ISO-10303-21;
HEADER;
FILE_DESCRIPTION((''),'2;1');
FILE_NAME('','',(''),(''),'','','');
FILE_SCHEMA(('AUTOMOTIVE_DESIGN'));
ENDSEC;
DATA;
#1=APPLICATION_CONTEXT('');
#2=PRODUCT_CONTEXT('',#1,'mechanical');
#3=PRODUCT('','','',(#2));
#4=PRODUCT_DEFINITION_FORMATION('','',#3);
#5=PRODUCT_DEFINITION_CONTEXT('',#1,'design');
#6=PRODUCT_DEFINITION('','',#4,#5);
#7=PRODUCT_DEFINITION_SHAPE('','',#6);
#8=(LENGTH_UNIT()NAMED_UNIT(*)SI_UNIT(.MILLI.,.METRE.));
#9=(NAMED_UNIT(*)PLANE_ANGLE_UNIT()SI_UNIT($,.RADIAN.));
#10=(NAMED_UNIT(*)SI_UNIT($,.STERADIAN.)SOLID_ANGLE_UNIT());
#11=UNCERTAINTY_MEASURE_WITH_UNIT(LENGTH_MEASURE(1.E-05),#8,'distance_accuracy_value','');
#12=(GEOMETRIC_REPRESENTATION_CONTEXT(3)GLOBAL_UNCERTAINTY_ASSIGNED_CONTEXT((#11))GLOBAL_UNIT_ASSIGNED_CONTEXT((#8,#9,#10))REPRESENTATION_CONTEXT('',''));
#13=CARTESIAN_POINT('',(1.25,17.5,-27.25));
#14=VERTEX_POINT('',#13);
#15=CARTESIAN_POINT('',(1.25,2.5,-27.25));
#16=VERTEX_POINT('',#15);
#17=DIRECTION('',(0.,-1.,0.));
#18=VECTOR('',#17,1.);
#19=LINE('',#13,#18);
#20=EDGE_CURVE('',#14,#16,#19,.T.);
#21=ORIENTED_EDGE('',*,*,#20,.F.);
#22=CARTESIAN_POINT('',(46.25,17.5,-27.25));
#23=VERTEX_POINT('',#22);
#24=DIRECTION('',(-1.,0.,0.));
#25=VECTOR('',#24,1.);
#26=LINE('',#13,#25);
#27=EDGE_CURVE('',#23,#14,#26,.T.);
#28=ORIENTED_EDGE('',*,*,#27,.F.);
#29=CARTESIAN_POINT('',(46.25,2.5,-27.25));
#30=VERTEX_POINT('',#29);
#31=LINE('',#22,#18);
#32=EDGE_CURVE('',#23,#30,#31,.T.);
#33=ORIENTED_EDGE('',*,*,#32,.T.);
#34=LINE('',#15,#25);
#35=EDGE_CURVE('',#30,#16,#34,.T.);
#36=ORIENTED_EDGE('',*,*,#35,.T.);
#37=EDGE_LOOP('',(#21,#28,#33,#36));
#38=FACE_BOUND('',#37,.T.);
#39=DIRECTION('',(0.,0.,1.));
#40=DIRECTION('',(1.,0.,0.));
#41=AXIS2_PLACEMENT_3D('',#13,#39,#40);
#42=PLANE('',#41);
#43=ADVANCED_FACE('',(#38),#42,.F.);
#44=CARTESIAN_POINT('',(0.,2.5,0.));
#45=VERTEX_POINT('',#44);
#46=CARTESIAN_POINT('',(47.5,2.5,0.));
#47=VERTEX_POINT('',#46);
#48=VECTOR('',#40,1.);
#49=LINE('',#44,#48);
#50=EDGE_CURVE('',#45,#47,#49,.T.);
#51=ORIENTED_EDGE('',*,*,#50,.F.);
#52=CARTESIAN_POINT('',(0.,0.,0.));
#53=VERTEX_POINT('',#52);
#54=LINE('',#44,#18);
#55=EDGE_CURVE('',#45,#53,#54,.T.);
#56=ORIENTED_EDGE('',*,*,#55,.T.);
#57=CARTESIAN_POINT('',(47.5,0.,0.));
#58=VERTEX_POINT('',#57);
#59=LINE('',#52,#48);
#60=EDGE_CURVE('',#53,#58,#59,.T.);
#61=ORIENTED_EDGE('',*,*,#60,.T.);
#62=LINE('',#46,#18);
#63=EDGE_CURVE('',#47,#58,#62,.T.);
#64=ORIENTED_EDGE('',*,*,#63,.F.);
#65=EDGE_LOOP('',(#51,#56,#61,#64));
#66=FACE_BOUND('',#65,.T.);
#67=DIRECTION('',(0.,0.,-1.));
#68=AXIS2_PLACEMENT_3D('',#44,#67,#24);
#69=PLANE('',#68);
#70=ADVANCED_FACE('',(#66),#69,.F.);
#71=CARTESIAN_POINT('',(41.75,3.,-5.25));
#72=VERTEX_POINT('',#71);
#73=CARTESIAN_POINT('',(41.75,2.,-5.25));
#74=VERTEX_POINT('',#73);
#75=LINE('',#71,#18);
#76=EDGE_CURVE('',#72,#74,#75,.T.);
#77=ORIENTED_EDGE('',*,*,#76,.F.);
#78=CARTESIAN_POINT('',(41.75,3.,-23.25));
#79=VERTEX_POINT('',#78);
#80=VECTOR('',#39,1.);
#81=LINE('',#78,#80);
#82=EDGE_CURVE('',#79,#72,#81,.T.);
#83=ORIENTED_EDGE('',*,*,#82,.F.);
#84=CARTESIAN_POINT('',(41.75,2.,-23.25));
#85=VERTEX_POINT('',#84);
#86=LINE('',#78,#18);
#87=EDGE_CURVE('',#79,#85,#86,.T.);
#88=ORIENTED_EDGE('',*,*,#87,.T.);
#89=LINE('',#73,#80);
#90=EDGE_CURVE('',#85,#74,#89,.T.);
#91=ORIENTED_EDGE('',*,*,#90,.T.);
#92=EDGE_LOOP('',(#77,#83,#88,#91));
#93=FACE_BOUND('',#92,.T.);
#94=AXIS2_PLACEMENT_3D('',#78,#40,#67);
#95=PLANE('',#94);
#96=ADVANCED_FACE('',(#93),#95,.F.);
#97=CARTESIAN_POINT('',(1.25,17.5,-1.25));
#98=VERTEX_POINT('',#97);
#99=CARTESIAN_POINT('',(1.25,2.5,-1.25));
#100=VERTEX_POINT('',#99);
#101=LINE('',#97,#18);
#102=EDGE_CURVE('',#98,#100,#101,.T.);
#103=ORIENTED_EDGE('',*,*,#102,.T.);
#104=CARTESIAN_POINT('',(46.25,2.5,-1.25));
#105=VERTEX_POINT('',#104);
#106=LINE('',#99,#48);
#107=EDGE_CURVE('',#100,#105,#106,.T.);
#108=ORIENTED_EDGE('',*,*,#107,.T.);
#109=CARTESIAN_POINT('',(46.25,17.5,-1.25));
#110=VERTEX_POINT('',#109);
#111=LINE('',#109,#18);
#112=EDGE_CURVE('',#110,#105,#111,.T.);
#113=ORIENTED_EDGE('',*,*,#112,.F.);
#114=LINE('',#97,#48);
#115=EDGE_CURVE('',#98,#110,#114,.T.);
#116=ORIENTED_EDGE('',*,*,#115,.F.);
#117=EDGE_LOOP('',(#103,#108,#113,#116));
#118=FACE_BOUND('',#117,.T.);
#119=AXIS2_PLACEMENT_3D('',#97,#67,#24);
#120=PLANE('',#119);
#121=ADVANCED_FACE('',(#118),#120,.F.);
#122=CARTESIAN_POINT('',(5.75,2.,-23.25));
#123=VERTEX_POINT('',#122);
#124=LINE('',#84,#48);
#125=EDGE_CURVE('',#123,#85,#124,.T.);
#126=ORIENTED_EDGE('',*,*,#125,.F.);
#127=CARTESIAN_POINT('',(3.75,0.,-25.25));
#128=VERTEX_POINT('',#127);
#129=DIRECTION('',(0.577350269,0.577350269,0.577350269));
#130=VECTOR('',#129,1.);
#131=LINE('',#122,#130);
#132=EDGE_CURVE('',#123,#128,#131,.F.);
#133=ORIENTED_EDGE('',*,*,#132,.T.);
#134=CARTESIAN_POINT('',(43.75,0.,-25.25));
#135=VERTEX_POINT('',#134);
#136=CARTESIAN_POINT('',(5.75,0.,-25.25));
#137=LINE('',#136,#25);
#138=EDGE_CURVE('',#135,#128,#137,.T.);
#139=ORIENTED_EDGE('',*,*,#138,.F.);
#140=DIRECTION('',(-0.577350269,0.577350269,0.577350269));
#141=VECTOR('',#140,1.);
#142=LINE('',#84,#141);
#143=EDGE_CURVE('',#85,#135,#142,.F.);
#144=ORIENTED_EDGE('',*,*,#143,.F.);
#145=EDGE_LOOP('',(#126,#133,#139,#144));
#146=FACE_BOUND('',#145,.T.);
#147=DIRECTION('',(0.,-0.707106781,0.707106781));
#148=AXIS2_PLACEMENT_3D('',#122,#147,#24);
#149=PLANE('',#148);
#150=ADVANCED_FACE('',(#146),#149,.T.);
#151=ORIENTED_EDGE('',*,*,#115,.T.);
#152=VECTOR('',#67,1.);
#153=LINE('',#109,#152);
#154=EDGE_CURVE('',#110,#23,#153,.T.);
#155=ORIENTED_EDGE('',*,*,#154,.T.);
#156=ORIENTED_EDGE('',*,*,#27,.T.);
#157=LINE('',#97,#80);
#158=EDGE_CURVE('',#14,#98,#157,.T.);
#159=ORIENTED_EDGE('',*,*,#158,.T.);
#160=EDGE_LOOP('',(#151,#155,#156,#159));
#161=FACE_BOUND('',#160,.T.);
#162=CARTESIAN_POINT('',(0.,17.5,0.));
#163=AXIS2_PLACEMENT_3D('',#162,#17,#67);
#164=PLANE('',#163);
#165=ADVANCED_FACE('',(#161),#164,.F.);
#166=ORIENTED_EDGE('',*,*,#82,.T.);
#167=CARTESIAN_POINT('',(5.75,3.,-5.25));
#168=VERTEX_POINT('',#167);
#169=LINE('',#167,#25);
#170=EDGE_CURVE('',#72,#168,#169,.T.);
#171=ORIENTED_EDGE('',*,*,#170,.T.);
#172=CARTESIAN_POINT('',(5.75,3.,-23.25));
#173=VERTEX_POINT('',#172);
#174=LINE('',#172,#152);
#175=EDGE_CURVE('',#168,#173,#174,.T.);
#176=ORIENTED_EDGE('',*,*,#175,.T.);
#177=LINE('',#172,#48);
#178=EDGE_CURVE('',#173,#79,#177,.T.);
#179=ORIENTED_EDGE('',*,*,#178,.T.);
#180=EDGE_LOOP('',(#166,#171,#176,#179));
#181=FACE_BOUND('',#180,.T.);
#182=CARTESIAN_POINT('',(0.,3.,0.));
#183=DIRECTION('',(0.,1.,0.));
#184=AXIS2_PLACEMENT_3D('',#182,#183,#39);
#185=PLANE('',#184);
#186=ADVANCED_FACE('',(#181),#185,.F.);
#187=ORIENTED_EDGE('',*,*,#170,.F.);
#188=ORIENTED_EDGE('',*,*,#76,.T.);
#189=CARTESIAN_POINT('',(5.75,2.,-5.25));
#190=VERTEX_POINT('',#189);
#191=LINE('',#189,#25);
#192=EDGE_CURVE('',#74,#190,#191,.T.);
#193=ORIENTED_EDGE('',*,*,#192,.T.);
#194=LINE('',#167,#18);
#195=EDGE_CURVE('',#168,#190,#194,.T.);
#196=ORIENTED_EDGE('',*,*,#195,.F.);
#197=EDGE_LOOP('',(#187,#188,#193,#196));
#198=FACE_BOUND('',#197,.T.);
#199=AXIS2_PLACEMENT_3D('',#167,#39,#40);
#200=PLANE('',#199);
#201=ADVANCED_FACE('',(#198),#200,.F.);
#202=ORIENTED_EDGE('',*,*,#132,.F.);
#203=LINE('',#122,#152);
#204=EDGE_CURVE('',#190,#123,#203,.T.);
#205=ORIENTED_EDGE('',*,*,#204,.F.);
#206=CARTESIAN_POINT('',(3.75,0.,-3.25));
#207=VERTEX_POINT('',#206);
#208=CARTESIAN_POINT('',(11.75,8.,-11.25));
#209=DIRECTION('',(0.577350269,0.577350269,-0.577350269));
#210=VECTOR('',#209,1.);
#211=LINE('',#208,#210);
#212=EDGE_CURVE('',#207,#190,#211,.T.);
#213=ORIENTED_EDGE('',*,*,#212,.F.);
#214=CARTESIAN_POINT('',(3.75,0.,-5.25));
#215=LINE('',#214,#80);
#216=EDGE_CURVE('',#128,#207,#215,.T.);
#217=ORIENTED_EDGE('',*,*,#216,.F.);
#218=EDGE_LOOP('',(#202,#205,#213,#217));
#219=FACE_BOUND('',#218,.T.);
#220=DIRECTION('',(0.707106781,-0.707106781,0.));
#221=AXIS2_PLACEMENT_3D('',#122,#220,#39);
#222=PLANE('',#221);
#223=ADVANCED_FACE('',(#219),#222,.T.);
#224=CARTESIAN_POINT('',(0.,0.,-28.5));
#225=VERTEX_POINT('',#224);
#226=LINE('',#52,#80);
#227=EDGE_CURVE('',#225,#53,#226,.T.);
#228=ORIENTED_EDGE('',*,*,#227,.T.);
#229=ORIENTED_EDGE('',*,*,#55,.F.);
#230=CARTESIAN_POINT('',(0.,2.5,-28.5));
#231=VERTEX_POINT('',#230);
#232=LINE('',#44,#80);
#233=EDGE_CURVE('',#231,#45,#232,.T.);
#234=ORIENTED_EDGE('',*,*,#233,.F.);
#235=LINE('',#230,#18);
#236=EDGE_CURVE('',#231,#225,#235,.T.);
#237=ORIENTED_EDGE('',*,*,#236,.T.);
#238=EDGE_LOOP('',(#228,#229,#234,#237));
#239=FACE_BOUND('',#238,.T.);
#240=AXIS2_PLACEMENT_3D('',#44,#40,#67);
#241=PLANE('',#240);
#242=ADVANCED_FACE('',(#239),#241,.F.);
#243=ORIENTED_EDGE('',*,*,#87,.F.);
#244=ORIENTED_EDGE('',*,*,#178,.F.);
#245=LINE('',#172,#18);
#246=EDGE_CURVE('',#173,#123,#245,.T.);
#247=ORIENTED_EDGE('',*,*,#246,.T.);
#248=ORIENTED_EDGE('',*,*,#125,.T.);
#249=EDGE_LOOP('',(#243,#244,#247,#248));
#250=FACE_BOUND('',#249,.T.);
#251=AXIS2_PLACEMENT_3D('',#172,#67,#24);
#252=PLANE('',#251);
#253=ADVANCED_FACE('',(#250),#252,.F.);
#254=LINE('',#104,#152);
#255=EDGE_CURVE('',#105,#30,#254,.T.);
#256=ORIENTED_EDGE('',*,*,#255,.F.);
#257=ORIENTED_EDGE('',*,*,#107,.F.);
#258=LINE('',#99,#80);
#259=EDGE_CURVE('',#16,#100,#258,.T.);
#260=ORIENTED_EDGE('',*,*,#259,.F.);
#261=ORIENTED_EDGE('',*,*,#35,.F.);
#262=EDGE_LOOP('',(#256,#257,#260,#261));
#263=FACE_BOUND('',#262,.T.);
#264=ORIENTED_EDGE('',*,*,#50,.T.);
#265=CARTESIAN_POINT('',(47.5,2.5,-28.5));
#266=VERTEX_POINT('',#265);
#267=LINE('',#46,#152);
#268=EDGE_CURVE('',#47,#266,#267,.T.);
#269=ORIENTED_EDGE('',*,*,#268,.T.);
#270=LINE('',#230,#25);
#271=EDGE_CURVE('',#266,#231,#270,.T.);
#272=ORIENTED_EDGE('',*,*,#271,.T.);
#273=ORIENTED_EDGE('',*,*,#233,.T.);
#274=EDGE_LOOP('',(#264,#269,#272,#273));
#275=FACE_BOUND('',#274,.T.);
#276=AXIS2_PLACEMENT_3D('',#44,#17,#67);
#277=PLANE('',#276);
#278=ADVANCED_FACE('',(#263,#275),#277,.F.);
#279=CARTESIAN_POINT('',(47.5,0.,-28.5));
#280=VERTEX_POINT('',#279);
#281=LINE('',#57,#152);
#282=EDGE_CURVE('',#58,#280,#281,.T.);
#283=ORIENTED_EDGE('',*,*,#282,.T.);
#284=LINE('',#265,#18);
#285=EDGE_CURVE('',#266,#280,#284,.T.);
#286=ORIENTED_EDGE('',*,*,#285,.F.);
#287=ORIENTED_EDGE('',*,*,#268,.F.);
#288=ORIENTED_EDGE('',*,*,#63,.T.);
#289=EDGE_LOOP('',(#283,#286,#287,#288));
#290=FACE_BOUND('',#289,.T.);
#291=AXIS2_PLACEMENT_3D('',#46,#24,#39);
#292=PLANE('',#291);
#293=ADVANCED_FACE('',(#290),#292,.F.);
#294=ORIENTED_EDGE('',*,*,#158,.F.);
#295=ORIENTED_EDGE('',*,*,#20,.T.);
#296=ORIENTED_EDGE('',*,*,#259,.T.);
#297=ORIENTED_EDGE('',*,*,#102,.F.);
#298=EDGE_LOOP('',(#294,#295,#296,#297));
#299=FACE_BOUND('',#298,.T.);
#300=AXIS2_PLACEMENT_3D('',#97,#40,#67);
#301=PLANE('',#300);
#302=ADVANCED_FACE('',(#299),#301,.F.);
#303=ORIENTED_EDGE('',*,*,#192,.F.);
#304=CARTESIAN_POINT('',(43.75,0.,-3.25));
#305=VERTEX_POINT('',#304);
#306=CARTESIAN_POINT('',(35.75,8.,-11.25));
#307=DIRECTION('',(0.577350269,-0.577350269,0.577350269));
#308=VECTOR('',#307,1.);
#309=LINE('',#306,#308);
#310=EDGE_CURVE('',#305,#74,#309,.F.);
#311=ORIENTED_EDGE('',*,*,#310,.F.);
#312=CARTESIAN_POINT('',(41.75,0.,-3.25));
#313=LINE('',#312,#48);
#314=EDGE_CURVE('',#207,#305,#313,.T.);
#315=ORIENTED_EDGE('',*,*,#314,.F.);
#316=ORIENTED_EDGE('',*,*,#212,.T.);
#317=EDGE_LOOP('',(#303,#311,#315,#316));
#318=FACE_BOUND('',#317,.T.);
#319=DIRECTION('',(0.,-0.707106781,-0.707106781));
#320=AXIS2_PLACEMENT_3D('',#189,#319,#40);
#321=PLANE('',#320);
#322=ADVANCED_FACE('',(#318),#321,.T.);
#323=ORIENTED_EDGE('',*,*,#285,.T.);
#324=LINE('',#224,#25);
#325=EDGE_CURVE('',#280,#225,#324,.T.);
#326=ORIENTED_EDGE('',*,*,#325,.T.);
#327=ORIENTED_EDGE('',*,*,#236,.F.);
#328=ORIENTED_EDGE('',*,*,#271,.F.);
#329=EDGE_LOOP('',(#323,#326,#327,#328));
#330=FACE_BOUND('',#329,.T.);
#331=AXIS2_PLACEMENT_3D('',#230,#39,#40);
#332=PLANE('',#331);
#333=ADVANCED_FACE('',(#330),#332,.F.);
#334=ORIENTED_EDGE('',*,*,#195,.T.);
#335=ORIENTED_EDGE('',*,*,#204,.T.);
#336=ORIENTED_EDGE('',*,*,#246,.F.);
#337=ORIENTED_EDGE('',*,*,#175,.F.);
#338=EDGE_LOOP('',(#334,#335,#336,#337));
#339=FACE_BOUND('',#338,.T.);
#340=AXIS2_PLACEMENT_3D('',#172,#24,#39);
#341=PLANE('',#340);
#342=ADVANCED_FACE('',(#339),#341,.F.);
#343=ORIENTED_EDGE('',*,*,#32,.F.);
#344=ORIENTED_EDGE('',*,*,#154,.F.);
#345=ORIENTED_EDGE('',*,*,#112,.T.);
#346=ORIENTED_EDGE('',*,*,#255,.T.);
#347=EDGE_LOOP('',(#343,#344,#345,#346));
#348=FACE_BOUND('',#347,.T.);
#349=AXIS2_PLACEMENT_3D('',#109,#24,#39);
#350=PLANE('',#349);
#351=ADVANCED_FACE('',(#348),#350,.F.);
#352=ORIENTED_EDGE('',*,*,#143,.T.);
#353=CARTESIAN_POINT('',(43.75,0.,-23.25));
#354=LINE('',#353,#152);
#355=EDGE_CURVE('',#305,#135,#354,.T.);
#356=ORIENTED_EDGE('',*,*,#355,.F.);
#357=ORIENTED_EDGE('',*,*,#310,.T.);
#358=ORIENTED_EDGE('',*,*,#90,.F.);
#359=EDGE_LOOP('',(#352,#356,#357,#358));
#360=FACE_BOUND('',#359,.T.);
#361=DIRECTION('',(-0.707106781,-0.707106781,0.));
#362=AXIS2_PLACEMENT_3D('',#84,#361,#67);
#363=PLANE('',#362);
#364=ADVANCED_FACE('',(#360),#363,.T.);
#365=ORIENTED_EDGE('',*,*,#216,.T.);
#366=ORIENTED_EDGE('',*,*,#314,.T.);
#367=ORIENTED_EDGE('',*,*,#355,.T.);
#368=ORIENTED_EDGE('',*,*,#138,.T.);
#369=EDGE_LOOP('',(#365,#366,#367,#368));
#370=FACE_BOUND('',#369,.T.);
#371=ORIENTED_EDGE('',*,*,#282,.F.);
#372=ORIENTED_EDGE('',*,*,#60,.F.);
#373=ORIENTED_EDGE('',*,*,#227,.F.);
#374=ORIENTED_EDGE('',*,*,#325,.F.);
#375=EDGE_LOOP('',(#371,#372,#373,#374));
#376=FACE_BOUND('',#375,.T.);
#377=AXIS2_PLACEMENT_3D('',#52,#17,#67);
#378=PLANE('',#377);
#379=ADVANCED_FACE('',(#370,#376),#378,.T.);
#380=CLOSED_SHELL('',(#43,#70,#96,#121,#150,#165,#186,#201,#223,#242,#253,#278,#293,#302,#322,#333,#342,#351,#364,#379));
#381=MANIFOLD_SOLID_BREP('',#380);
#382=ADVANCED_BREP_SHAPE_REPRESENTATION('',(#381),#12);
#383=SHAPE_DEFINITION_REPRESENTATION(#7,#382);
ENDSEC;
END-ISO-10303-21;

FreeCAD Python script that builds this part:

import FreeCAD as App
import Part
import Sketcher

V = App.Vector


def edges_at(feature, points):
    """Names of the edges that pass closest to the given points."""
    edges = feature.Shape.Edges
    near = lambda p: min(range(len(edges)), key=lambda i: edges[i].distToShape(Part.Vertex(*p))[0])
    return sorted({f"Edge{near(p) + 1}" for p in points})


def add_polygon(sketch, points):
    """Adds a closed chain of lines whose ends are joined by coincident constraints."""
    first, n = sketch.GeometryCount, len(points)
    for a, b in zip(points, points[1:] + points[:1]):
        sketch.addGeometry(Part.LineSegment(App.Vector(*a, 0), App.Vector(*b, 0)), False)
    for i in range(n):
        sketch.addConstraint(Sketcher.Constraint("Coincident", first + i, 2, first + (i + 1) % n, 1))

doc = App.newDocument("Part")
params = doc.addObject("Spreadsheet::Sheet", "Params")
for row, (alias, value) in enumerate([
    ("sketch1_width", "47.5 mm"),
    ("sketch1_height", "28.5 mm"),
    ("pad1_length", "2.5 mm"),
    ("sketch2_width", "45 mm"),
    ("sketch2_height", "26 mm"),
    ("pad2_length", "15 mm"),
    ("sketch3_width", "36 mm"),
    ("sketch3_height", "18 mm"),
    ("pocket1_length", "3 mm"),
    ("chamfer_size", "2 mm"),
], start=1):
    params.set(f"A{row}", alias)
    params.set(f"B{row}", "=" + value)
    params.setAlias(f"B{row}", alias)

body = doc.addObject("PartDesign::Body", "Body")

sketch1 = doc.addObject("Sketcher::SketchObject", "Sketch")
body.addObject(sketch1)
sketch1.AttachmentSupport = (doc.XZ_Plane, [""])
sketch1.MapMode = "FlatFace"
add_polygon(sketch1, [(0, -28), (0, 0), (48, 0), (48, -28)])
sketch1.addConstraint([
    Sketcher.Constraint("Vertical", 0),
    Sketcher.Constraint("Horizontal", 1),
    Sketcher.Constraint("Vertical", 2),
    Sketcher.Constraint("Horizontal", 3),
    Sketcher.Constraint("Coincident", 0, 2, -1, 1),
    Sketcher.Constraint("DistanceX", 1, 1, 1, 2, 47.5),
    Sketcher.Constraint("DistanceY", 0, 1, 0, 2, 28.5),
])
sketch1.setExpression("Constraints[9]", "Params.sketch1_width")
sketch1.setExpression("Constraints[10]", "Params.sketch1_height")
pad1 = doc.addObject("PartDesign::Pad", "Pad")
body.addObject(pad1)
pad1.Profile = sketch1
pad1.setExpression("Length", "Params.pad1_length")
pad1.Reversed = True

sketch2 = doc.addObject("Sketcher::SketchObject", "Sketch001")
body.addObject(sketch2)
sketch2.AttachmentSupport = (doc.XZ_Plane, [""])
sketch2.MapMode = "FlatFace"
sketch2.AttachmentOffset = App.Placement(V(0, 0, -2.5), App.Rotation())
add_polygon(sketch2, [(1, -27), (1, -1), (46, -1), (46, -27)])
sketch2.addConstraint([
    Sketcher.Constraint("Vertical", 0),
    Sketcher.Constraint("Horizontal", 1),
    Sketcher.Constraint("Vertical", 2),
    Sketcher.Constraint("Horizontal", 3),
    Sketcher.Constraint("DistanceX", 1, 1, 1, 2, 45.0),
    Sketcher.Constraint("DistanceY", 0, 1, 0, 2, 26.0),
    Sketcher.Constraint("DistanceX", -1, 1, 0, 2, 1.25),
    Sketcher.Constraint("DistanceY", 0, 2, -1, 1, 1.25),
])
sketch2.setExpression("Constraints[8]", "Params.sketch2_width")
sketch2.setExpression("Constraints[9]", "Params.sketch2_height")
pad2 = doc.addObject("PartDesign::Pad", "Pad001")
body.addObject(pad2)
pad2.Profile = sketch2
pad2.setExpression("Length", "Params.pad2_length")
pad2.Reversed = True

sketch3 = doc.addObject("Sketcher::SketchObject", "Sketch002")
body.addObject(sketch3)
sketch3.AttachmentSupport = (doc.XZ_Plane, [""])
sketch3.MapMode = "FlatFace"
add_polygon(sketch3, [(6, -5), (6, -23), (42, -23), (42, -5)])
sketch3.addConstraint([
    Sketcher.Constraint("Vertical", 0),
    Sketcher.Constraint("Horizontal", 1),
    Sketcher.Constraint("Vertical", 2),
    Sketcher.Constraint("Horizontal", 3),
    Sketcher.Constraint("DistanceX", 1, 1, 1, 2, 36.0),
    Sketcher.Constraint("DistanceY", 0, 2, 0, 1, 18.0),
    Sketcher.Constraint("DistanceX", -1, 1, 0, 2, 5.75),
    Sketcher.Constraint("DistanceY", 0, 2, -1, 1, 23.25),
])
sketch3.setExpression("Constraints[8]", "Params.sketch3_width")
sketch3.setExpression("Constraints[9]", "Params.sketch3_height")
pocket1 = doc.addObject("PartDesign::Pocket", "Pocket")
body.addObject(pocket1)
pocket1.Profile = sketch3
pocket1.setExpression("Length", "Params.pocket1_length")
doc.recompute()

chamfer = doc.addObject("PartDesign::Chamfer", "Chamfer")
body.addObject(chamfer)
chamfer.Base = (pocket1, edges_at(pocket1, [
    (41.75, 0, -14.25),
    (23.75, 0, -5.25),
    (5.75, 0, -14.25),
    (23.75, 0, -23.25),
]))
chamfer.setExpression("Size", "Params.chamfer_size")

doc.recompute()
